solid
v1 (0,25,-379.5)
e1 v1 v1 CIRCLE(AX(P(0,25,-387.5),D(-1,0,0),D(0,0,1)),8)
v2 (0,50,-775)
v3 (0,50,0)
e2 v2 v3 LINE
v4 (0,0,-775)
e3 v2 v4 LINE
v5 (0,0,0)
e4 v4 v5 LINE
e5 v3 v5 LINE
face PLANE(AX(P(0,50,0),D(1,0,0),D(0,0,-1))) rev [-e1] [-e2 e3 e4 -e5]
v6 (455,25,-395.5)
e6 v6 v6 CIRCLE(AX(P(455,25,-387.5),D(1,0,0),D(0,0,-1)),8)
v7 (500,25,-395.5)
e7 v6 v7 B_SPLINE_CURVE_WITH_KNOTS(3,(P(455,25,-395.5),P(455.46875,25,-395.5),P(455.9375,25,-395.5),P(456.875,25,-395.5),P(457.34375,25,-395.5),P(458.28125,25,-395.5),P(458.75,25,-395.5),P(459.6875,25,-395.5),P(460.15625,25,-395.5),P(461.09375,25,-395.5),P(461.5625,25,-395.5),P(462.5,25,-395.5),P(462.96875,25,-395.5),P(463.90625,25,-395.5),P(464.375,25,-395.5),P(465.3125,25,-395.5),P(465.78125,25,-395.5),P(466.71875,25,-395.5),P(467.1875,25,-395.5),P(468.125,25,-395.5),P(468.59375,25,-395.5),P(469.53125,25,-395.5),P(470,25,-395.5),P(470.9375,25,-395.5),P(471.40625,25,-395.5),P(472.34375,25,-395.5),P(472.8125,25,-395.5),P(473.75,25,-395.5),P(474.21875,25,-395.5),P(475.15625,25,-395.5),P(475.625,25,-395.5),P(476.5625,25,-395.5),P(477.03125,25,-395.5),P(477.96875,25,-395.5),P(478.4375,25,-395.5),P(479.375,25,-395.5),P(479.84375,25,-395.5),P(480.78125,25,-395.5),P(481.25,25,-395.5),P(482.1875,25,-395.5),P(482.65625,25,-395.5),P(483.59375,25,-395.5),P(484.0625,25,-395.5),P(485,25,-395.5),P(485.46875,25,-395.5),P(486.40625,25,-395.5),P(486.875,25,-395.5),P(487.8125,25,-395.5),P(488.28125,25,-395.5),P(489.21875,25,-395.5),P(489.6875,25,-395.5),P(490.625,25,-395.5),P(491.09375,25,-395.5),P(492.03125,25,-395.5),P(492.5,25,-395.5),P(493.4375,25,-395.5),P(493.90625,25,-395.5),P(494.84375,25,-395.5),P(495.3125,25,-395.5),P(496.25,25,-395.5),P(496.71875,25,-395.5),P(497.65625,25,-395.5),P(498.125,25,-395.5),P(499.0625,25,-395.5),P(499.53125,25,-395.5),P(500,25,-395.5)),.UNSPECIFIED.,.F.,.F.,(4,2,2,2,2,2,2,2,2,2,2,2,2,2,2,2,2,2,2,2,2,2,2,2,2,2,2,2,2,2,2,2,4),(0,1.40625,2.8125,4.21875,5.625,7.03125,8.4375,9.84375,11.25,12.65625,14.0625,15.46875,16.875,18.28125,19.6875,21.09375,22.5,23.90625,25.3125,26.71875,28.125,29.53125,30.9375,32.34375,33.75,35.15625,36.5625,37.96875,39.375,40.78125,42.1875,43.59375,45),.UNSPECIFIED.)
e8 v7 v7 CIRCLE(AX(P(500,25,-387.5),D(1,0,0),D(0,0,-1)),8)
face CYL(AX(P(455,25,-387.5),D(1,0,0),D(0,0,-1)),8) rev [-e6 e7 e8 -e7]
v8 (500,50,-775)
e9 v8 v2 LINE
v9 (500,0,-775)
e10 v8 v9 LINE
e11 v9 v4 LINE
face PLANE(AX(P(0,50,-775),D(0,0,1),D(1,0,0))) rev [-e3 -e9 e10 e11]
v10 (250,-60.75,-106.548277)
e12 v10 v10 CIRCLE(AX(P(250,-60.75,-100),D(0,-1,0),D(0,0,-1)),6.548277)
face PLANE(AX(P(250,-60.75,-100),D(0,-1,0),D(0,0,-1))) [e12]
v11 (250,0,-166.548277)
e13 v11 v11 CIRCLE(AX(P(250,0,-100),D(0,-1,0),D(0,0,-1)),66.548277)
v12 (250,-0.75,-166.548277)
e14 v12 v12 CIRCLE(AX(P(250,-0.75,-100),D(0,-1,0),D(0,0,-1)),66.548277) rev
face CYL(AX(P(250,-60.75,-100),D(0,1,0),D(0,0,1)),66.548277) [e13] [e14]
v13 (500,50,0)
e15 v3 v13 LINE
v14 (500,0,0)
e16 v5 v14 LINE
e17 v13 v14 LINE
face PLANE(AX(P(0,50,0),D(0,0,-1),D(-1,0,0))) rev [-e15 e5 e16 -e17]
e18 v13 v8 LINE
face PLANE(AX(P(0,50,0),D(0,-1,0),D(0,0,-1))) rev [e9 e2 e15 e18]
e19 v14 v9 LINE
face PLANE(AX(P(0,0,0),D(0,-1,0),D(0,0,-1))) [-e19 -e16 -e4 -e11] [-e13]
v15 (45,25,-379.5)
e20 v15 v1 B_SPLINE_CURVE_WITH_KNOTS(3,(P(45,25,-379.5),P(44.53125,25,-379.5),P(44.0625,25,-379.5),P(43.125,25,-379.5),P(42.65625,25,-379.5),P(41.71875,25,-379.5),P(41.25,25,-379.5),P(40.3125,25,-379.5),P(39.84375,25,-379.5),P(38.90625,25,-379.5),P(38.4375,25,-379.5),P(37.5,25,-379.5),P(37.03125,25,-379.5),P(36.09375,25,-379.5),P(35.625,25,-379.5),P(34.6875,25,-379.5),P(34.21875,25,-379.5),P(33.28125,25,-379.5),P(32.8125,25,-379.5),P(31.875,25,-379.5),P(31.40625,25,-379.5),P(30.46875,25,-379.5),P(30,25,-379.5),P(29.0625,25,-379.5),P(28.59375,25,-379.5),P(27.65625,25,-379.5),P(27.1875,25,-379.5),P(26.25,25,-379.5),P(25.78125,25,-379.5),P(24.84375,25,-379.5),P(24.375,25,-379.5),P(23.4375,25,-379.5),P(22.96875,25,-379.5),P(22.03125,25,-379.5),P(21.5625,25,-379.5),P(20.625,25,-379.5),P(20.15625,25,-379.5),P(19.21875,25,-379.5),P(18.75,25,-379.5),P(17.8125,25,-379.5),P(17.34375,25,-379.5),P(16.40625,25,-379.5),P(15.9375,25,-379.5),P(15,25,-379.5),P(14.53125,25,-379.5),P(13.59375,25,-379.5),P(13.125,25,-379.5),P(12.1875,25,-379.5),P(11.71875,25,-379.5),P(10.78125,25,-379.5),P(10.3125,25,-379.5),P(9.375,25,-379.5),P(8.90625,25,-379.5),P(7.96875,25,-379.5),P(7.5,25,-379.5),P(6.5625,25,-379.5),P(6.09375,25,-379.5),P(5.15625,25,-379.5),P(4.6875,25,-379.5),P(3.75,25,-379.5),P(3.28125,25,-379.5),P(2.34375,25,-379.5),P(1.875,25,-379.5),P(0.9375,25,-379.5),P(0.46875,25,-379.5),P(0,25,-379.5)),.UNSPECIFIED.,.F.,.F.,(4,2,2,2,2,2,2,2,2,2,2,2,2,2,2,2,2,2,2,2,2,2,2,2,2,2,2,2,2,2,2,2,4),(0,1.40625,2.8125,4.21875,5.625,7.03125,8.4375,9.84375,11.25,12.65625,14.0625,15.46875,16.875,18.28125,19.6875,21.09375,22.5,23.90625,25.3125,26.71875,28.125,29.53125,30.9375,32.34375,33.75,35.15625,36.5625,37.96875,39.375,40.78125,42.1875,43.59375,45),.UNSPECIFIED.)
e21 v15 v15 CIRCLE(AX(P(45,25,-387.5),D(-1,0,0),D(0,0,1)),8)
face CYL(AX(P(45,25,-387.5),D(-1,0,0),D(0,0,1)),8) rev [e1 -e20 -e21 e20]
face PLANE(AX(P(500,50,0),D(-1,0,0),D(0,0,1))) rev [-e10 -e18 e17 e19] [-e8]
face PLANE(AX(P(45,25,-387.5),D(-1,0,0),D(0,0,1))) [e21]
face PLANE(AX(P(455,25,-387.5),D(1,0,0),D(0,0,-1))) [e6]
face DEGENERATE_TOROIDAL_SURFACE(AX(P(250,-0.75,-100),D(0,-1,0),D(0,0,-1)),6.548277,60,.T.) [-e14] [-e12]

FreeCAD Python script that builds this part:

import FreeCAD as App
import Part
import Sketcher
from FreeCAD import Vector
Q = App.Units.Quantity


def edges_at(feature, points):
    """Names of the edges that pass closest to the given points."""
    edges = feature.Shape.Edges
    near = lambda p: min(range(len(edges)), key=lambda i: edges[i].distToShape(Part.Vertex(*p))[0])
    return sorted({f"Edge{near(p) + 1}" for p in points})


def add_polygon(sketch, points):
    """Adds a closed chain of lines whose ends are joined by coincident constraints."""
    first, n = sketch.GeometryCount, len(points)
    for a, b in zip(points, points[1:] + points[:1]):
        sketch.addGeometry(Part.LineSegment(App.Vector(*a, 0), App.Vector(*b, 0)), False)
    for i in range(n):
        sketch.addConstraint(Sketcher.Constraint("Coincident", first + i, 2, first + (i + 1) % n, 1))

doc = App.newDocument("Part")
body = doc.addObject("PartDesign::Body", "Body")

sketch1 = body.newObject("Sketcher::SketchObject", "Sketch")
sketch1.AttachmentSupport = (doc.getObject("XZ_Plane"), [""])
sketch1.MapMode = "FlatFace"
add_polygon(sketch1, [(0, -775), (0, 0), (500, 0), (500, -775)])
sketch1.addConstraint(Sketcher.Constraint("Vertical", 0))
sketch1.addConstraint(Sketcher.Constraint("Horizontal", 1))
sketch1.addConstraint(Sketcher.Constraint("Vertical", 2))
sketch1.addConstraint(Sketcher.Constraint("Horizontal", 3))
sketch1.addConstraint(Sketcher.Constraint("Coincident", 0, 2, -1, 1))
sketch1.addConstraint(Sketcher.Constraint("DistanceX", 1, 1, 1, 2, Q("500 mm")))
sketch1.addConstraint(Sketcher.Constraint("DistanceY", 0, 1, 0, 2, Q("775 mm")))
pad1 = body.newObject("PartDesign::Pad", "Pad")
pad1.Profile = sketch1
pad1.Length = 50
pad1.Reversed = True

sketch2 = body.newObject("Sketcher::SketchObject", "Sketch001")
sketch2.AttachmentSupport = (doc.getObject("YZ_Plane"), [""])
sketch2.MapMode = "FlatFace"
sketch2.AttachmentOffset = App.Placement(Vector(0, 0, 500), App.Rotation())
sketch2.addGeometry(Part.Circle(Vector(25, -388, 0), Vector(0, 0, 1), 8), False)
sketch2.addConstraint(Sketcher.Constraint("Diameter", 0, Q("16 mm")))
sketch2.addConstraint(Sketcher.Constraint("DistanceX", -1, 1, 0, 3, Q("25 mm")))
sketch2.addConstraint(Sketcher.Constraint("DistanceY", 0, 3, -1, 1, Q("387.5 mm")))
pocket1 = body.newObject("PartDesign::Pocket", "Pocket")
pocket1.Profile = sketch2
pocket1.Length = 45

sketch3 = body.newObject("Sketcher::SketchObject", "Sketch002")
sketch3.AttachmentSupport = (doc.getObject("YZ_Plane"), [""])
sketch3.MapMode = "FlatFace"
sketch3.AttachmentOffset = App.Placement(Vector(0, 0, 45), App.Rotation())
sketch3.addGeometry(Part.Circle(Vector(25, -388, 0), Vector(0, 0, 1), 8), False)
sketch3.addConstraint(Sketcher.Constraint("Diameter", 0, Q("16 mm")))
sketch3.addConstraint(Sketcher.Constraint("DistanceX", -1, 1, 0, 3, Q("25 mm")))
sketch3.addConstraint(Sketcher.Constraint("DistanceY", 0, 3, -1, 1, Q("387.5 mm")))
pocket2 = body.newObject("PartDesign::Pocket", "Pocket001")
pocket2.Profile = sketch3
pocket2.Length = 45

sketch4 = body.newObject("Sketcher::SketchObject", "Sketch003")
sketch4.AttachmentSupport = (doc.getObject("XZ_Plane"), [""])
sketch4.MapMode = "FlatFace"
sketch4.addGeometry(Part.Circle(Vector(250, -100, 0), Vector(0, 0, 1), 67), False)
sketch4.addConstraint(Sketcher.Constraint("DistanceX", -1, 1, 0, 3, Q("250 mm")))
sketch4.addConstraint(Sketcher.Constraint("DistanceY", 0, 3, -1, 1, Q("100 mm")))
sketch4.addConstraint(Sketcher.Constraint("Diameter", 0, Q("133.096555 mm")))
pad2 = body.newObject("PartDesign::Pad", "Pad001")
pad2.Profile = sketch4
pad2.Length = 60.75
doc.recompute()

fillet = body.newObject("PartDesign::Fillet", "Fillet")
fillet.Base = (pad2, edges_at(pad2, [(250, -60.75, -33.452)]))
fillet.Radius = 60

doc.recompute()
